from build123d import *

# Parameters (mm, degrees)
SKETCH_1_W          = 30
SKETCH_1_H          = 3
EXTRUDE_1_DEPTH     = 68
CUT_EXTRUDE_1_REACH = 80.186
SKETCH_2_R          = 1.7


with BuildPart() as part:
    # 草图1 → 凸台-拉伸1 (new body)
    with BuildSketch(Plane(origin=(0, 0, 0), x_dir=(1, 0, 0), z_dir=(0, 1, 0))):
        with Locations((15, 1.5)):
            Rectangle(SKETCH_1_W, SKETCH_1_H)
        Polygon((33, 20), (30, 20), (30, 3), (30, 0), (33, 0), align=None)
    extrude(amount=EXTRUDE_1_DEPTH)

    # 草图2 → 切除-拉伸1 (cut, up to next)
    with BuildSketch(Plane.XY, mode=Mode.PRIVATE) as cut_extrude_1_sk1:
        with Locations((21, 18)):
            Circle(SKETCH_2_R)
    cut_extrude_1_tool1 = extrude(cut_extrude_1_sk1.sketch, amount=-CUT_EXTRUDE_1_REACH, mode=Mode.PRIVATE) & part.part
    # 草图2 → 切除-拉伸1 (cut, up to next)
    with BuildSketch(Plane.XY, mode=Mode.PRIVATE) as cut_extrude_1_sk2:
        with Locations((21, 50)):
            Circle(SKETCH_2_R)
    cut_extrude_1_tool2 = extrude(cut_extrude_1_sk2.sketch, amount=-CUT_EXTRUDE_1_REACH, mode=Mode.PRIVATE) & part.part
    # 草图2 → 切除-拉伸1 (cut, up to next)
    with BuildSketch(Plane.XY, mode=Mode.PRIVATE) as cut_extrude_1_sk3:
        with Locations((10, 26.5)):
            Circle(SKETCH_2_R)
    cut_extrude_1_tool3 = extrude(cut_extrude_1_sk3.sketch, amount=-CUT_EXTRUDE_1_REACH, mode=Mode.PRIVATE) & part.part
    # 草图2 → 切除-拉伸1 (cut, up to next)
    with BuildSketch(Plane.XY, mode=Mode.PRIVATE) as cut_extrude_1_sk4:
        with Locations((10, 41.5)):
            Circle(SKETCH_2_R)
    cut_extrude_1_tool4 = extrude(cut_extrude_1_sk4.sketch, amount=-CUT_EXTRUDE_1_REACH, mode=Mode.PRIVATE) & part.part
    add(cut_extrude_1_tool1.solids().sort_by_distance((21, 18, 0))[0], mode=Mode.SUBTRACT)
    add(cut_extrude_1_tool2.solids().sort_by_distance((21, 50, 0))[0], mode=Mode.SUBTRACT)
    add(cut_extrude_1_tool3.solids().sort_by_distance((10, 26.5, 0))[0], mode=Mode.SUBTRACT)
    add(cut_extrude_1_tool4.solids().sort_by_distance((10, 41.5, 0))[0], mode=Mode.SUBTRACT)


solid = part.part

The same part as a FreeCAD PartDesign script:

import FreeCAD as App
import Part
import Sketcher


def add_polygon(sketch, points):
    """Adds a closed chain of lines whose ends are joined by coincident constraints."""
    first, n = sketch.GeometryCount, len(points)
    for a, b in zip(points, points[1:] + points[:1]):
        sketch.addGeometry(Part.LineSegment(App.Vector(*a, 0), App.Vector(*b, 0)), False)
    for i in range(n):
        sketch.addConstraint(Sketcher.Constraint("Coincident", first + i, 2, first + (i + 1) % n, 1))

doc = App.newDocument("Part")
body = doc.addObject("PartDesign::Body", "Body")

# Sketch on XZ plane
sketch1 = body.newObject("Sketcher::SketchObject", "Sketch")
sketch1.AttachmentSupport = (doc.getObject("XZ_Plane"), [""])
sketch1.MapMode = "FlatFace"
add_polygon(sketch1, [(0, -3), (0, 0), (33, 0), (33, -20), (30, -20), (30, -3)])  # lines 0-5
sketch1.addConstraint([
    Sketcher.Constraint("Vertical", 0),
    Sketcher.Constraint("Horizontal", 1),
    Sketcher.Constraint("Vertical", 2),
    Sketcher.Constraint("Horizontal", 3),
    Sketcher.Constraint("Vertical", 4),
    Sketcher.Constraint("Horizontal", 5),
    Sketcher.Constraint("Coincident", 0, 2, -1, 1),
    Sketcher.Constraint("Equal", 3, 0),
    Sketcher.Constraint("DistanceX", 1, 1, 1, 2, 33.0),
    Sketcher.Constraint("DistanceX", 3, 2, 3, 1, 3.0),
    Sketcher.Constraint("DistanceY", 2, 2, 2, 1, 20.0),
])
pad1 = body.newObject("PartDesign::Pad", "Pad")
pad1.Profile = sketch1
pad1.Length = 68
pad1.Reversed = True

# Sketch on XY plane
sketch2 = body.newObject("Sketcher::SketchObject", "Sketch001")
sketch2.AttachmentSupport = (doc.getObject("XY_Plane"), [""])
sketch2.MapMode = "FlatFace"
sketch2.addGeometry(Part.Circle(App.Vector(21, 18, 0), App.Vector(0, 0, 1), 1.7), False)
sketch2.addConstraint([
    Sketcher.Constraint("Diameter", 0, 3.4),
    Sketcher.Constraint("DistanceX", -1, 1, 0, 3, 21.0),
    Sketcher.Constraint("DistanceY", -1, 1, 0, 3, 18.0),
])
pocket1 = body.newObject("PartDesign::Pocket", "Pocket")
pocket1.Profile = sketch2
pocket1.Type = "UpToFirst"

# Sketch on XY plane
sketch3 = body.newObject("Sketcher::SketchObject", "Sketch002")
sketch3.AttachmentSupport = (doc.getObject("XY_Plane"), [""])
sketch3.MapMode = "FlatFace"
sketch3.addGeometry(Part.Circle(App.Vector(21, 50, 0), App.Vector(0, 0, 1), 1.7), False)
sketch3.addConstraint([
    Sketcher.Constraint("Diameter", 0, 3.4),
    Sketcher.Constraint("DistanceX", -1, 1, 0, 3, 21.0),
    Sketcher.Constraint("DistanceY", -1, 1, 0, 3, 50.0),
])
pocket2 = body.newObject("PartDesign::Pocket", "Pocket001")
pocket2.Profile = sketch3
pocket2.Type = "UpToFirst"

# Sketch on XY plane
sketch4 = body.newObject("Sketcher::SketchObject", "Sketch003")
sketch4.AttachmentSupport = (doc.getObject("XY_Plane"), [""])
sketch4.MapMode = "FlatFace"
sketch4.addGeometry(Part.Circle(App.Vector(10, 26.5, 0), App.Vector(0, 0, 1), 1.7), False)
sketch4.addConstraint([
    Sketcher.Constraint("Diameter", 0, 3.4),
    Sketcher.Constraint("DistanceX", -1, 1, 0, 3, 10.0),
    Sketcher.Constraint("DistanceY", -1, 1, 0, 3, 26.5),
])
pocket3 = body.newObject("PartDesign::Pocket", "Pocket002")
pocket3.Profile = sketch4
pocket3.Type = "UpToFirst"

# Sketch on XY plane
sketch5 = body.newObject("Sketcher::SketchObject", "Sketch004")
sketch5.AttachmentSupport = (doc.getObject("XY_Plane"), [""])
sketch5.MapMode = "FlatFace"
sketch5.addGeometry(Part.Circle(App.Vector(10, 41.5, 0), App.Vector(0, 0, 1), 1.7), False)
sketch5.addConstraint([
    Sketcher.Constraint("Diameter", 0, 3.4),
    Sketcher.Constraint("DistanceX", -1, 1, 0, 3, 10.0),
    Sketcher.Constraint("DistanceY", -1, 1, 0, 3, 41.5),
])
pocket4 = body.newObject("PartDesign::Pocket", "Pocket003")
pocket4.Profile = sketch5
pocket4.Type = "UpToFirst"

doc.recompute()
